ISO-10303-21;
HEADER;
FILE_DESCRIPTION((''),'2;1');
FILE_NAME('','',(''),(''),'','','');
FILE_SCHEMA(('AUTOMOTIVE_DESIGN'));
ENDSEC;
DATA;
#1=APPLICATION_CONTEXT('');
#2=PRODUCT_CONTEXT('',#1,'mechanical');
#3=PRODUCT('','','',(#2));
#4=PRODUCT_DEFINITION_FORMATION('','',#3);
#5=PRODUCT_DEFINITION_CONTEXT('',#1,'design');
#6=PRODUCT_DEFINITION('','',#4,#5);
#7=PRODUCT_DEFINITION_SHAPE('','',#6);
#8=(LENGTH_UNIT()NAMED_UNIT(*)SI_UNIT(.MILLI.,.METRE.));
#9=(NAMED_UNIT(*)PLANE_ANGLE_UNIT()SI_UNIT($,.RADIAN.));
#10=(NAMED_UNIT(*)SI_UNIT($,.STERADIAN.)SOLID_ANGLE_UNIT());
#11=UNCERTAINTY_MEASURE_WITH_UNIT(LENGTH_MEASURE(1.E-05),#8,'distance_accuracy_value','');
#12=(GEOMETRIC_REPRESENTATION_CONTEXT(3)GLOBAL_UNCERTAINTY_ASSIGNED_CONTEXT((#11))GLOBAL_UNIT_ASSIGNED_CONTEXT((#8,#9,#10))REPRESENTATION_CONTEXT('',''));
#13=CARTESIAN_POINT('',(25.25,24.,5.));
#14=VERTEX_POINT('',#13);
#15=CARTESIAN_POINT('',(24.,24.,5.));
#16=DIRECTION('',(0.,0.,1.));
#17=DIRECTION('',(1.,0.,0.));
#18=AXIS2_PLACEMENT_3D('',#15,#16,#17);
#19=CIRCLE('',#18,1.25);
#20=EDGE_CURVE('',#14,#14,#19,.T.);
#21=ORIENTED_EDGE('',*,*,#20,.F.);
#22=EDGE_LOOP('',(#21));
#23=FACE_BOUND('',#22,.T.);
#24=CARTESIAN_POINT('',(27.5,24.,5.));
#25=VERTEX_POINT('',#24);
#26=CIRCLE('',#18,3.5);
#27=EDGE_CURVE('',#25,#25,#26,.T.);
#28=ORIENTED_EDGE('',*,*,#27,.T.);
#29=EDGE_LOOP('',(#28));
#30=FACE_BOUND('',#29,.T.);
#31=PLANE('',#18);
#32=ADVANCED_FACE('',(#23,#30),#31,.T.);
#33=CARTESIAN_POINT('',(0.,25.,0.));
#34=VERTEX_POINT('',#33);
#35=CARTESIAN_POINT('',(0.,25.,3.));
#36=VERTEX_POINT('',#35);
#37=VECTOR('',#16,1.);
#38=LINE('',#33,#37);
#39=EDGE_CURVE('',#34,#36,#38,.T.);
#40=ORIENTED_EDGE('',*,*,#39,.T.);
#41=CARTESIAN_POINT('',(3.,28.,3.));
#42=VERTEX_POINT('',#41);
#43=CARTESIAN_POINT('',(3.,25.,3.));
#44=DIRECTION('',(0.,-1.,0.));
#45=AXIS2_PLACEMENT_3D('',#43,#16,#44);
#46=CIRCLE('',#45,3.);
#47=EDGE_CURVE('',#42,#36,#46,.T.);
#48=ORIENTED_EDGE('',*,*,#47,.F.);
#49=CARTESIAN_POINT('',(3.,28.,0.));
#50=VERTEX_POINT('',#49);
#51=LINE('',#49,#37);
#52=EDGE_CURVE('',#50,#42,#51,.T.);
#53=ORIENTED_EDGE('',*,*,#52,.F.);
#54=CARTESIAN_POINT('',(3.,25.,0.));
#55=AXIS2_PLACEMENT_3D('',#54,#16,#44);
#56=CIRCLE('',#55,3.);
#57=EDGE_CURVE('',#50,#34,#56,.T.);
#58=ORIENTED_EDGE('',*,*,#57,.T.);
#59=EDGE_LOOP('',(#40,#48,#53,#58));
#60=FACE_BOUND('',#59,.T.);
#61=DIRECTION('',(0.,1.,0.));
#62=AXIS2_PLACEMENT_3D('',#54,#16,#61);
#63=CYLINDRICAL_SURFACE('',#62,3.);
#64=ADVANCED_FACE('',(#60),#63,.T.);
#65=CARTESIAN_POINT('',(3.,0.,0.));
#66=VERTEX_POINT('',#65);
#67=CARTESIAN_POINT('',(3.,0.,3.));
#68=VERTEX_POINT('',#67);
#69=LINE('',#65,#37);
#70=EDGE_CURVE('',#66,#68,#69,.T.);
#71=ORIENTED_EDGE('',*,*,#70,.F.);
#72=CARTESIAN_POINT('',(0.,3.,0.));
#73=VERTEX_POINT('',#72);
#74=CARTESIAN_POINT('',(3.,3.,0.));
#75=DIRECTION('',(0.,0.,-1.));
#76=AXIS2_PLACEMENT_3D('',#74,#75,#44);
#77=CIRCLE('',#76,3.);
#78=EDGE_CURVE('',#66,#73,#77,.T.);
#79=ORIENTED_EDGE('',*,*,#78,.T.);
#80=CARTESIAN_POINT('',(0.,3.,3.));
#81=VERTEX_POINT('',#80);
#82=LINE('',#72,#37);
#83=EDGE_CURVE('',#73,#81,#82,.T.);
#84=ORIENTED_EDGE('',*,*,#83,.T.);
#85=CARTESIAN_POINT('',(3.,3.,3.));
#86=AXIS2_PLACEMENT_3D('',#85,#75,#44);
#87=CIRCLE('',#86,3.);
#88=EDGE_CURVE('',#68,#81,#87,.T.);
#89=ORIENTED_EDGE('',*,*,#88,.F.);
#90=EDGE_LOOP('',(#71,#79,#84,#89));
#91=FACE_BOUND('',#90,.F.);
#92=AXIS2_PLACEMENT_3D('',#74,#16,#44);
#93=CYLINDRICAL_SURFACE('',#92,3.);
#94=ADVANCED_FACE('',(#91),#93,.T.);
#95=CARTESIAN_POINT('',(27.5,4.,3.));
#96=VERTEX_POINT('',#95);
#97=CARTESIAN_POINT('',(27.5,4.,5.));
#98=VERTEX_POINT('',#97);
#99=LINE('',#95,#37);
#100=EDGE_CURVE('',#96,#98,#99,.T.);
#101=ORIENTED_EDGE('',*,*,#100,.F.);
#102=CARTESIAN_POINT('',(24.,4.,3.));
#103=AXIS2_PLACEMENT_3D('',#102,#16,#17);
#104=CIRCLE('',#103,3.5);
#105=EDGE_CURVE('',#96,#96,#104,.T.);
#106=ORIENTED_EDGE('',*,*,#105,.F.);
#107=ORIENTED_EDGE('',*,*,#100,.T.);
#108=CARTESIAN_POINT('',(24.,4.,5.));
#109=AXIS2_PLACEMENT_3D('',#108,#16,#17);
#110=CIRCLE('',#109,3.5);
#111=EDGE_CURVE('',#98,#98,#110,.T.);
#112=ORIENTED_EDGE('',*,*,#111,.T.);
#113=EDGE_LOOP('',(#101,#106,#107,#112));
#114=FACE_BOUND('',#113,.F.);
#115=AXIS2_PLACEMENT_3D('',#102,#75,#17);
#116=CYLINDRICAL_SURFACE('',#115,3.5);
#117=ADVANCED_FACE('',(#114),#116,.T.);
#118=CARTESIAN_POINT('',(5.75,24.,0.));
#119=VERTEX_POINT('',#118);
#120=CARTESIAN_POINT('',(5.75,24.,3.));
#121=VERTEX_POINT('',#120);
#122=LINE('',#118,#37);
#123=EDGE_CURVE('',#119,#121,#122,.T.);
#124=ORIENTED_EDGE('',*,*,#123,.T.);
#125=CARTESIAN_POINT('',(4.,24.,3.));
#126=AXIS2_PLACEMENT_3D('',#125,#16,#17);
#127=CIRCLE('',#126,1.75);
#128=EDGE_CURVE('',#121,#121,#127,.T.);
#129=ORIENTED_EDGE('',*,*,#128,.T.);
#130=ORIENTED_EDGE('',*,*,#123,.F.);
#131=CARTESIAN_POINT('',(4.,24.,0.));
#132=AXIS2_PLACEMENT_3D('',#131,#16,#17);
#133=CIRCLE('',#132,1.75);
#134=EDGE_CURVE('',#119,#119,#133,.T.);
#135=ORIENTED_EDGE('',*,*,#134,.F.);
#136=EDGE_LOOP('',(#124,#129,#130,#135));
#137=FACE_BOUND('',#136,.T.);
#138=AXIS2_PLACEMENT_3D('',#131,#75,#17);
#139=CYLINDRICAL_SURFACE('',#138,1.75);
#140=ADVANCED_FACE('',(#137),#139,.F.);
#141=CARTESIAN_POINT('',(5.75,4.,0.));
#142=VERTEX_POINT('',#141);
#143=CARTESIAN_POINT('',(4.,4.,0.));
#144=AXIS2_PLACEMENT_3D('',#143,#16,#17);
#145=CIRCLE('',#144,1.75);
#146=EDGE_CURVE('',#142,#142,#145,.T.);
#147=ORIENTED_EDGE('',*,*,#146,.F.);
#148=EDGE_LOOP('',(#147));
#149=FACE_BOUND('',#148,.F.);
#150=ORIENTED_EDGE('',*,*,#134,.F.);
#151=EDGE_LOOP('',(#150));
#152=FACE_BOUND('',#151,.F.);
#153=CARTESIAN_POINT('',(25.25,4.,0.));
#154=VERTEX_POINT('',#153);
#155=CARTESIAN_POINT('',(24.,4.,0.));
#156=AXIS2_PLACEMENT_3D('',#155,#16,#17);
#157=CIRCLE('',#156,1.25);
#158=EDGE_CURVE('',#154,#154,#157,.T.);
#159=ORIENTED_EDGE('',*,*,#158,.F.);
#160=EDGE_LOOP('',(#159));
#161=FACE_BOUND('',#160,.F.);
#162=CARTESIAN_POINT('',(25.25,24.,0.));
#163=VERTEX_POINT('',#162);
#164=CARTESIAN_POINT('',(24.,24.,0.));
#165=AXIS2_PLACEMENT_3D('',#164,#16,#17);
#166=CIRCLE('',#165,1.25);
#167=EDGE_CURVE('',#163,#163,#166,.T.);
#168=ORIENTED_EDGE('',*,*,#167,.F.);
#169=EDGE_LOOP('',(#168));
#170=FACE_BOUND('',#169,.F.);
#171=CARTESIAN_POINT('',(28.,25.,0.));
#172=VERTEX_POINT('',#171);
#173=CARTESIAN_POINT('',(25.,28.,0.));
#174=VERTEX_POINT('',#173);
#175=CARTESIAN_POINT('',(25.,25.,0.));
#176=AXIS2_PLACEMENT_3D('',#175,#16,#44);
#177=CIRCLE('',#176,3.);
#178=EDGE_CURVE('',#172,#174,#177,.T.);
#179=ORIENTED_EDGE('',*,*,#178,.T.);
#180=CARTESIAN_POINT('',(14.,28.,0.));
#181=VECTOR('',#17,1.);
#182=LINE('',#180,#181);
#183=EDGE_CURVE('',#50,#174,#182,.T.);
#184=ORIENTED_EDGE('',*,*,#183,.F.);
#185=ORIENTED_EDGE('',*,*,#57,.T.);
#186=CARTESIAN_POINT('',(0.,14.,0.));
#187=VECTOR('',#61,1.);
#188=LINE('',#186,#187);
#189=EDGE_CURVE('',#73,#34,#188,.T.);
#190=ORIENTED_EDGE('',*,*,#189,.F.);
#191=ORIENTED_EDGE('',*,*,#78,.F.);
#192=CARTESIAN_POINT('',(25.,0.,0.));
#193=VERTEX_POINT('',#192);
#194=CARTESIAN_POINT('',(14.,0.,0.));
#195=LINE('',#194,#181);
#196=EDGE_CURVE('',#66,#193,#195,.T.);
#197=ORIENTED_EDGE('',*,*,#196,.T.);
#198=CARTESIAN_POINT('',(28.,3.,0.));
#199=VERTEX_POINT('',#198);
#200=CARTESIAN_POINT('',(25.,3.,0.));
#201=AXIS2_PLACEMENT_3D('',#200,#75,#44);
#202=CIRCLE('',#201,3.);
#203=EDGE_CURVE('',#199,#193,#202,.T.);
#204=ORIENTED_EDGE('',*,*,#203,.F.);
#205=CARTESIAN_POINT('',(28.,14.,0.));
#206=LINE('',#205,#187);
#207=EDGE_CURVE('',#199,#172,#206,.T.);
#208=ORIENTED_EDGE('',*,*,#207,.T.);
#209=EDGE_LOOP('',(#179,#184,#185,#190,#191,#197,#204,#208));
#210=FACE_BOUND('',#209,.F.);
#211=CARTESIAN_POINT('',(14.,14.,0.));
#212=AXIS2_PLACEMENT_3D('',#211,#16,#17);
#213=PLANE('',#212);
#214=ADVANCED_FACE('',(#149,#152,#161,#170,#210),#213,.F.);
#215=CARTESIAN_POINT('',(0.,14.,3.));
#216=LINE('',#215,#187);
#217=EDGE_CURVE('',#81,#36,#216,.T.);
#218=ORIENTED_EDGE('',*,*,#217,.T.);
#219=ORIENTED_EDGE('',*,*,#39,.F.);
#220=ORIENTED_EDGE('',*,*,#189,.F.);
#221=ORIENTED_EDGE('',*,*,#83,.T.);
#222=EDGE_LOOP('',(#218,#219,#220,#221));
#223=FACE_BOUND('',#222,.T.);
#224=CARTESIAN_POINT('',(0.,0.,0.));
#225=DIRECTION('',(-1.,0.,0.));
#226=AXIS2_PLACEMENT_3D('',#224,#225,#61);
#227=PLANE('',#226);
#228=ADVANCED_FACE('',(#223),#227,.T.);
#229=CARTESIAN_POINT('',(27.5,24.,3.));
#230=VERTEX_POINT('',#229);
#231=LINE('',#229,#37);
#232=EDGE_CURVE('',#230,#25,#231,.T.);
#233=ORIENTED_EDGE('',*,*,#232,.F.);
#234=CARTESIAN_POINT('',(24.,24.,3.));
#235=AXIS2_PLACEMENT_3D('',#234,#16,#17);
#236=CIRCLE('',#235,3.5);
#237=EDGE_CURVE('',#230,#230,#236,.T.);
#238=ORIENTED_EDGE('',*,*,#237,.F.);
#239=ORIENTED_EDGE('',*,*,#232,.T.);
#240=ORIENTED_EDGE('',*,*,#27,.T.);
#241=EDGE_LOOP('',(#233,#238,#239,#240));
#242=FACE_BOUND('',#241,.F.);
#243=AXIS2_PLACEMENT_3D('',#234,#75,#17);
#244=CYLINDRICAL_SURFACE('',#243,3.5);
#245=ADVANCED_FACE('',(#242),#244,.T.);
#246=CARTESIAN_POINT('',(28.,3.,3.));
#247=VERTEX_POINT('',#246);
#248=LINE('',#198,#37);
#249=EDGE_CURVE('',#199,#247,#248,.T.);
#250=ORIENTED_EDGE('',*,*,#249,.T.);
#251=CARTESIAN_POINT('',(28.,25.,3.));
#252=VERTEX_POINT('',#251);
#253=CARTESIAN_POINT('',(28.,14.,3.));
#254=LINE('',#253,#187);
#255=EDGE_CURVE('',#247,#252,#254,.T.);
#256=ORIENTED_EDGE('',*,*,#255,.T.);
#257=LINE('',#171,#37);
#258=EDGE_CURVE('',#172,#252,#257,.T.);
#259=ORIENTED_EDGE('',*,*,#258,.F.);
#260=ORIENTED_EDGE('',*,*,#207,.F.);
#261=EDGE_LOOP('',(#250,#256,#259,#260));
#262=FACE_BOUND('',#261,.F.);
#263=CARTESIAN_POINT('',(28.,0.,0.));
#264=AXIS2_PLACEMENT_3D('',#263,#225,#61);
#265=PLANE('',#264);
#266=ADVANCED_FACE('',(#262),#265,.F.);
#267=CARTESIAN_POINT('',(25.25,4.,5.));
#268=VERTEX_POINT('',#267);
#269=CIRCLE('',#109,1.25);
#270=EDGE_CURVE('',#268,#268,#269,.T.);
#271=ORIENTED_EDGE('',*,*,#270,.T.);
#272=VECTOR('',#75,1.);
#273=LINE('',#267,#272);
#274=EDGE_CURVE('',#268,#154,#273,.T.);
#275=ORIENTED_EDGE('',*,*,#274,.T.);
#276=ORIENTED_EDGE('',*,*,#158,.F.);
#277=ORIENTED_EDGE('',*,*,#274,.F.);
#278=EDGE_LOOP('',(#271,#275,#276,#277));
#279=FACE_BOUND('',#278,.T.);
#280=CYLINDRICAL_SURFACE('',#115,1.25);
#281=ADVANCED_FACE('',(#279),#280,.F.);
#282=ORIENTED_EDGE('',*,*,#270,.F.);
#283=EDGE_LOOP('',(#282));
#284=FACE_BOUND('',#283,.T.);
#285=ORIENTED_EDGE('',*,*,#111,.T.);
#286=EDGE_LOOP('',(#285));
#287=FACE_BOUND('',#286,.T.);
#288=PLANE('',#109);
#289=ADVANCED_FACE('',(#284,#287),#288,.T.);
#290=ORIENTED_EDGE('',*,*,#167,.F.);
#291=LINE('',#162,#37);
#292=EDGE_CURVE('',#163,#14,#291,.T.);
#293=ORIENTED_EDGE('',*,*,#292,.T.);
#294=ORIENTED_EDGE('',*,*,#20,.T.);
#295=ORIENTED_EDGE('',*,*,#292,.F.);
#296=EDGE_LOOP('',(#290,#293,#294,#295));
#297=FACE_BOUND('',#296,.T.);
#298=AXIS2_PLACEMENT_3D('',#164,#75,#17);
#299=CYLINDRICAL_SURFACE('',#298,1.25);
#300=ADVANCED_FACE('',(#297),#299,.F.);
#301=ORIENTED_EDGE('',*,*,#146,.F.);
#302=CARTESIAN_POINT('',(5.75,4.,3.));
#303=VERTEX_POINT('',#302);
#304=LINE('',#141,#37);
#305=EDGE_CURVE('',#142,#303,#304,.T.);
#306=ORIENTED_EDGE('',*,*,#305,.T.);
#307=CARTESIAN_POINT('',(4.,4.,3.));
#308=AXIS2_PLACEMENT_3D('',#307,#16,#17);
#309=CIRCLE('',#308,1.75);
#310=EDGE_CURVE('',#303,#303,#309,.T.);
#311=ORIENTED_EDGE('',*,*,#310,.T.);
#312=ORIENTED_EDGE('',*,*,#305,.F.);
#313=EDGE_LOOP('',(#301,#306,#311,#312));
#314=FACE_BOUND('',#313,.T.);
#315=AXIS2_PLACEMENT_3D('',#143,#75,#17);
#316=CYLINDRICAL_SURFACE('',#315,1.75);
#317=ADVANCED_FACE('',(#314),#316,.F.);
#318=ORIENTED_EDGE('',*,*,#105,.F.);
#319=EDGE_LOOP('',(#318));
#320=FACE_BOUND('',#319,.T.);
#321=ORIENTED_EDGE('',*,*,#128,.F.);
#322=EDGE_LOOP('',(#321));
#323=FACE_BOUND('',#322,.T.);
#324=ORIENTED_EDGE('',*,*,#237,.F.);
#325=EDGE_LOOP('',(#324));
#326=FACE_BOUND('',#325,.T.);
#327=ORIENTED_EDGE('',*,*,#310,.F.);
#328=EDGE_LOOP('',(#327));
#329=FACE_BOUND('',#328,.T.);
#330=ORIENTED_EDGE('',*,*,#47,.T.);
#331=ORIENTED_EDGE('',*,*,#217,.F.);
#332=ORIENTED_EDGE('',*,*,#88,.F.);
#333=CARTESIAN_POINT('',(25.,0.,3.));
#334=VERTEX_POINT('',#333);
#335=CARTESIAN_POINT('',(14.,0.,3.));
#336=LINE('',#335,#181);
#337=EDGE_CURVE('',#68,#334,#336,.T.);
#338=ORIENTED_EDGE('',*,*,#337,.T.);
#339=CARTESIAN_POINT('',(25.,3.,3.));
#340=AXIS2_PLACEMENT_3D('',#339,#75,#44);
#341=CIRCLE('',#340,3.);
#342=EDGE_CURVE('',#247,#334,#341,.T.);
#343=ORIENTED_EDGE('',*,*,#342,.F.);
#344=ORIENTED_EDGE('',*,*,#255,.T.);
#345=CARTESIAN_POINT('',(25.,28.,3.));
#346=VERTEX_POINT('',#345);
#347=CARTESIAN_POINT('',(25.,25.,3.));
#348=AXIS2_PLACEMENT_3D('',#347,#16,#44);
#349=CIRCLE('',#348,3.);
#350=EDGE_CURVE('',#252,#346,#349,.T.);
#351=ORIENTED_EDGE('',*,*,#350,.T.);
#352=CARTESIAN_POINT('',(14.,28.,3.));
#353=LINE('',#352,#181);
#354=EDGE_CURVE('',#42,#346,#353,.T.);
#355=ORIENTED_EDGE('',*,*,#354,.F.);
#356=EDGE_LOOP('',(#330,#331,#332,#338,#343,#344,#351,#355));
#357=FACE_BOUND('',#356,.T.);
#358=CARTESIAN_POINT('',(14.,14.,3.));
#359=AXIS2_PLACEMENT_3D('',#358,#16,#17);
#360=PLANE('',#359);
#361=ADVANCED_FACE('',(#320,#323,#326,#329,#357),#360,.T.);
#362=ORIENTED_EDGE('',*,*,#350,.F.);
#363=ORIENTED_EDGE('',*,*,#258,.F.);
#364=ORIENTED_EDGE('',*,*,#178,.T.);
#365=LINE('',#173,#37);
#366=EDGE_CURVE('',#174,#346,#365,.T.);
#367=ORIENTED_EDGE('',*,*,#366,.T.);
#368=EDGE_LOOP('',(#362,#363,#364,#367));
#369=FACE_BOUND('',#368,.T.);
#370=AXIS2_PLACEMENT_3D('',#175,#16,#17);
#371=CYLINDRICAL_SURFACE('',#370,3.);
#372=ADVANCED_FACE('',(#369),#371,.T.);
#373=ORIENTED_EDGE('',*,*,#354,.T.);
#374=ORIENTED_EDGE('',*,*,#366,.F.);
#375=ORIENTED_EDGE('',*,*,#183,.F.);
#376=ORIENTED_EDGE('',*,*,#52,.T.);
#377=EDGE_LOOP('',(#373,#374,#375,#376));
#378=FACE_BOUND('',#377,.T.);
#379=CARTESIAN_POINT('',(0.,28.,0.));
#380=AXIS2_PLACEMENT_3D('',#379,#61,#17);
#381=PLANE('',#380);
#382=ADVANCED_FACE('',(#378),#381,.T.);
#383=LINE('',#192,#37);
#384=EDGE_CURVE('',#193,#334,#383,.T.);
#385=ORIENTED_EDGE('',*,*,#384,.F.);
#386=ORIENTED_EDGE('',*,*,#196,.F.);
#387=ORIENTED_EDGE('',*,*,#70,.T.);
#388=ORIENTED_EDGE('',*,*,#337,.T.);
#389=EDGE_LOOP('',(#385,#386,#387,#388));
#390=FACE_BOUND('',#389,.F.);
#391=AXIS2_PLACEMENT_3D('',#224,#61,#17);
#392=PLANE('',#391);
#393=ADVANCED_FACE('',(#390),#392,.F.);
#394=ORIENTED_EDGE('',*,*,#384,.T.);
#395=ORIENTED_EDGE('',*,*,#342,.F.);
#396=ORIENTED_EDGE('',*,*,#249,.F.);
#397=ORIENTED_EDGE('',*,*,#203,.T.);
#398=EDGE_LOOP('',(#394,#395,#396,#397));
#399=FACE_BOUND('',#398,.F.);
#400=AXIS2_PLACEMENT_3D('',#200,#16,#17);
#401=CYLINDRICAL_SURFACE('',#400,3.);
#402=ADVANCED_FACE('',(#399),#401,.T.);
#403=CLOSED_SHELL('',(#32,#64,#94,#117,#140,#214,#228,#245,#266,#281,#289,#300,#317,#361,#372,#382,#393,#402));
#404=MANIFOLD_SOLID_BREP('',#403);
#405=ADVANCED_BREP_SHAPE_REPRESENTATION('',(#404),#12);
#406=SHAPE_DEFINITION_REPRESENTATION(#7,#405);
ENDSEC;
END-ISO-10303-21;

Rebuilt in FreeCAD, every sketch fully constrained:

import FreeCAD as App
import Part
import Sketcher


def edges_at(feature, points):
    """Names of the edges that pass closest to the given points."""
    edges = feature.Shape.Edges
    near = lambda p: min(range(len(edges)), key=lambda i: edges[i].distToShape(Part.Vertex(*p))[0])
    return sorted({f"Edge{near(p) + 1}" for p in points})


def add_polygon(sketch, points):
    """Adds a closed chain of lines whose ends are joined by coincident constraints."""
    first, n = sketch.GeometryCount, len(points)
    for a, b in zip(points, points[1:] + points[:1]):
        sketch.addGeometry(Part.LineSegment(App.Vector(*a, 0), App.Vector(*b, 0)), False)
    for i in range(n):
        sketch.addConstraint(Sketcher.Constraint("Coincident", first + i, 2, first + (i + 1) % n, 1))

doc = App.newDocument("Part")
params = doc.addObject("Spreadsheet::Sheet", "Params")
for row, (alias, value) in enumerate([
    ("sketch1_diameter", "3.5 mm"),
    ("sketch1_diameter2", "2.5 mm"),
    ("sketch1_width", "28 mm"),
    ("pad1_length", "3 mm"),
    ("sketch2_diameter", "7 mm"),
    ("sketch2_diameter2", "2.5 mm"),
    ("pad2_length", "2 mm"),
    ("fillet_radius", "3 mm"),
], start=1):
    params.set(f"A{row}", alias)
    params.set(f"B{row}", "=" + value)
    params.setAlias(f"B{row}", alias)

body = doc.addObject("PartDesign::Body", "Body")

# Sketch on XY plane
sketch1 = doc.addObject("Sketcher::SketchObject", "Sketch")
body.addObject(sketch1)
sketch1.AttachmentSupport = (doc.XY_Plane, [""])
sketch1.MapMode = "FlatFace"
add_polygon(sketch1, [(0, 28), (0, 0), (28, 0), (28, 28)])  # lines 0-3
sketch1.addGeometry(Part.Circle(App.Vector(4, 4, 0), App.Vector(0, 0, 1), 1.8), False)  # 4
sketch1.addGeometry(Part.Circle(App.Vector(24, 4, 0), App.Vector(0, 0, 1), 1.2), False)  # 5
sketch1.addGeometry(Part.Circle(App.Vector(4, 24, 0), App.Vector(0, 0, 1), 1.8), False)  # 6
sketch1.addGeometry(Part.Circle(App.Vector(24, 24, 0), App.Vector(0, 0, 1), 1.2), False)  # 7
sketch1.addConstraint(Sketcher.Constraint("Vertical", 0))
sketch1.addConstraint(Sketcher.Constraint("Horizontal", 1))
sketch1.addConstraint(Sketcher.Constraint("Vertical", 2))
sketch1.addConstraint(Sketcher.Constraint("Horizontal", 3))
sketch1.addConstraint(Sketcher.Constraint("Coincident", 0, 2, -1, 1))
sketch1.addConstraint(Sketcher.Constraint("Equal", 4, 6))
sketch1.addConstraint(Sketcher.Constraint("Equal", 5, 7))
sketch1.addConstraint(Sketcher.Constraint("Horizontal", 4, 3, 5, 3))
sketch1.addConstraint(Sketcher.Constraint("Horizontal", 6, 3, 7, 3))
sketch1.addConstraint(Sketcher.Constraint("Vertical", 4, 3, 6, 3))
sketch1.addConstraint(Sketcher.Constraint("Vertical", 5, 3, 7, 3))
sketch1.addConstraint(Sketcher.Constraint("Equal", 3, 0))
sketch1.addConstraint(Sketcher.Constraint("Diameter", 4, 3.5))
sketch1.addConstraint(Sketcher.Constraint("Diameter", 5, 2.5))
sketch1.addConstraint(Sketcher.Constraint("DistanceX", 1, 1, 1, 2, 28.0))
sketch1.addConstraint(Sketcher.Constraint("DistanceX", -1, 1, 4, 3, 4.0))
sketch1.addConstraint(Sketcher.Constraint("DistanceY", -1, 1, 4, 3, 4.0))
sketch1.addConstraint(Sketcher.Constraint("DistanceX", -1, 1, 5, 3, 24.0))
sketch1.addConstraint(Sketcher.Constraint("DistanceY", -1, 1, 6, 3, 24.0))
sketch1.setExpression("Constraints[16]", "Params.sketch1_diameter")
sketch1.setExpression("Constraints[17]", "Params.sketch1_diameter2")
sketch1.setExpression("Constraints[18]", "Params.sketch1_width")
pad1 = doc.addObject("PartDesign::Pad", "Pad")
body.addObject(pad1)
pad1.Profile = sketch1
pad1.setExpression("Length", "Params.pad1_length")

# Sketch on XY plane
sketch2 = doc.addObject("Sketcher::SketchObject", "Sketch001")
body.addObject(sketch2)
sketch2.AttachmentSupport = (doc.XY_Plane, [""])
sketch2.MapMode = "FlatFace"
sketch2.AttachmentOffset = App.Placement(App.Vector(0, 0, 3), App.Rotation())
sketch2.addGeometry(Part.Circle(App.Vector(24, 4, 0), App.Vector(0, 0, 1), 3.5), False)
sketch2.addGeometry(Part.Circle(App.Vector(24, 4, 0), App.Vector(0, 0, 1), 1.2), False)
sketch2.addGeometry(Part.Circle(App.Vector(24, 24, 0), App.Vector(0, 0, 1), 3.5), False)
sketch2.addGeometry(Part.Circle(App.Vector(24, 24, 0), App.Vector(0, 0, 1), 1.2), False)
sketch2.addConstraint(Sketcher.Constraint("Coincident", 1, 3, 0, 3))
sketch2.addConstraint(Sketcher.Constraint("Coincident", 3, 3, 2, 3))
sketch2.addConstraint(Sketcher.Constraint("Equal", 0, 2))
sketch2.addConstraint(Sketcher.Constraint("Equal", 1, 3))
sketch2.addConstraint(Sketcher.Constraint("Vertical", 1, 3, 2, 3))
sketch2.addConstraint(Sketcher.Constraint("Diameter", 0, 7.0))
sketch2.addConstraint(Sketcher.Constraint("Diameter", 1, 2.5))
sketch2.addConstraint(Sketcher.Constraint("DistanceX", -1, 1, 0, 3, 24.0))
sketch2.addConstraint(Sketcher.Constraint("DistanceY", -1, 1, 0, 3, 4.0))
sketch2.addConstraint(Sketcher.Constraint("DistanceY", -1, 1, 2, 3, 24.0))
sketch2.setExpression("Constraints[5]", "Params.sketch2_diameter")
sketch2.setExpression("Constraints[6]", "Params.sketch2_diameter2")
pad2 = doc.addObject("PartDesign::Pad", "Pad001")
body.addObject(pad2)
pad2.Profile = sketch2
pad2.setExpression("Length", "Params.pad2_length")
doc.recompute()

fillet = doc.addObject("PartDesign::Fillet", "Fillet")
body.addObject(fillet)
fillet.Base = (pad2, edges_at(pad2, [
    (0, 0, 1.5),
    (0, 28, 1.5),
    (28, 0, 1.5),
    (28, 28, 1.5),
]))
fillet.setExpression("Radius", "Params.fillet_radius")

doc.recompute()
